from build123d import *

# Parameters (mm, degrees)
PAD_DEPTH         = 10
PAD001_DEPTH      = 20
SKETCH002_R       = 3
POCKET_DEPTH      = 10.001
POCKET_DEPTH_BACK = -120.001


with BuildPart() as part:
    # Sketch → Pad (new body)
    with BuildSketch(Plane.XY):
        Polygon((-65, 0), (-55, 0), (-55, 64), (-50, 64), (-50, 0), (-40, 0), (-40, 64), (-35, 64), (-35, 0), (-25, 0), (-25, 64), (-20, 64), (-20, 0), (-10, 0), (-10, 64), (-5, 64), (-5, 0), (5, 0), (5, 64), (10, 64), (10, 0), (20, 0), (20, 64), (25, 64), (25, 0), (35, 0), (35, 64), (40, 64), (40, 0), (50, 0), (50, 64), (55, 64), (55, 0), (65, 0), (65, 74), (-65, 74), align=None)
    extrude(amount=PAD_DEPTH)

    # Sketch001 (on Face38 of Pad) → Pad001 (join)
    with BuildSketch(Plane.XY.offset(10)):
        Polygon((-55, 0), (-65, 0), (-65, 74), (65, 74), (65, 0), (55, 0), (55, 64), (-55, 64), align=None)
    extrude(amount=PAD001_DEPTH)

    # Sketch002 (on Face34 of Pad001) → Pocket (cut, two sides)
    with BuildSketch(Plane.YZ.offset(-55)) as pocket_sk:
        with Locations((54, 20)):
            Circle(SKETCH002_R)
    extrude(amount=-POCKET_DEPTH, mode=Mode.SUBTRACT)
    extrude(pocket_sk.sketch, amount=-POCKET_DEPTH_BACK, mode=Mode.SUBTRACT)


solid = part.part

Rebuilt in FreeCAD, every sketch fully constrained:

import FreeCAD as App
import Part
import Sketcher
from FreeCAD import Vector
Q = App.Units.Quantity


def add_polygon(sketch, points):
    """Adds a closed chain of lines whose ends are joined by coincident constraints."""
    first, n = sketch.GeometryCount, len(points)
    for a, b in zip(points, points[1:] + points[:1]):
        sketch.addGeometry(Part.LineSegment(App.Vector(*a, 0), App.Vector(*b, 0)), False)
    for i in range(n):
        sketch.addConstraint(Sketcher.Constraint("Coincident", first + i, 2, first + (i + 1) % n, 1))

doc = App.newDocument("Part")
body = doc.addObject("PartDesign::Body", "Body")

sketch1 = body.newObject("Sketcher::SketchObject", "Sketch")
sketch1.AttachmentSupport = (doc.getObject("XY_Plane"), [""])
sketch1.MapMode = "FlatFace"
add_polygon(sketch1, [(-65, 0), (-55, 0), (-55, 64), (-50, 64), (-50, 0), (-40, 0), (-40, 64), (-35, 64), (-35, 0), (-25, 0), (-25, 64), (-20, 64), (-20, 0), (-10, 0), (-10, 64), (-5, 64), (-5, 0), (5, 0), (5, 64), (10, 64), (10, 0), (20, 0), (20, 64), (25, 64), (25, 0), (35, 0), (35, 64), (40, 64), (40, 0), (50, 0), (50, 64), (55, 64), (55, 0), (65, 0), (65, 74), (-65, 74)])
sketch1.addConstraint([
    Sketcher.Constraint("Horizontal", 0),
    Sketcher.Constraint("Vertical", 1),
    Sketcher.Constraint("Horizontal", 2),
    Sketcher.Constraint("Vertical", 3),
    Sketcher.Constraint("Horizontal", 4),
    Sketcher.Constraint("Vertical", 5),
    Sketcher.Constraint("Horizontal", 6),
    Sketcher.Constraint("Vertical", 7),
    Sketcher.Constraint("Horizontal", 8),
    Sketcher.Constraint("Vertical", 9),
    Sketcher.Constraint("Horizontal", 10),
    Sketcher.Constraint("Vertical", 11),
    Sketcher.Constraint("Horizontal", 12),
    Sketcher.Constraint("Vertical", 13),
    Sketcher.Constraint("Horizontal", 14),
    Sketcher.Constraint("Vertical", 15),
    Sketcher.Constraint("Horizontal", 16),
    Sketcher.Constraint("Vertical", 17),
    Sketcher.Constraint("Horizontal", 18),
    Sketcher.Constraint("Vertical", 19),
    Sketcher.Constraint("Horizontal", 20),
    Sketcher.Constraint("Vertical", 21),
    Sketcher.Constraint("Horizontal", 22),
    Sketcher.Constraint("Vertical", 23),
    Sketcher.Constraint("Horizontal", 24),
    Sketcher.Constraint("Vertical", 25),
    Sketcher.Constraint("Horizontal", 26),
    Sketcher.Constraint("Vertical", 27),
    Sketcher.Constraint("Horizontal", 28),
    Sketcher.Constraint("Vertical", 29),
    Sketcher.Constraint("Horizontal", 30),
    Sketcher.Constraint("Vertical", 31),
    Sketcher.Constraint("Horizontal", 32),
    Sketcher.Constraint("Vertical", 33),
    Sketcher.Constraint("Horizontal", 34),
    Sketcher.Constraint("Vertical", 35),
    Sketcher.Constraint("Symmetric", 15, 2, 16, 2, -1, 1),
    Sketcher.Constraint("Symmetric", 12, 2, 19, 2, -1, 1),
    Sketcher.Constraint("Symmetric", 8, 2, 23, 2, -1, 1),
    Sketcher.Constraint("Symmetric", 4, 2, 27, 2, -1, 1),
    Sketcher.Constraint("Symmetric", 0, 2, 31, 2, -1, 1),
    Sketcher.Constraint("Symmetric", 11, 2, 20, 2, -2),
    Sketcher.Constraint("Symmetric", 7, 2, 24, 2, -2),
    Sketcher.Constraint("Symmetric", 3, 2, 28, 2, -2),
    Sketcher.Constraint("Symmetric", 32, 2, 35, 2, -2),
    Sketcher.Constraint("Horizontal", 2, 2, 5, 2),
    Sketcher.Constraint("Horizontal", 6, 2, 9, 2),
    Sketcher.Constraint("Horizontal", 10, 2, 13, 2),
    Sketcher.Constraint("Horizontal", 14, 2, 17, 2),
    Sketcher.Constraint("Horizontal", 18, 2, 21, 2),
    Sketcher.Constraint("Horizontal", 22, 2, 25, 2),
    Sketcher.Constraint("Horizontal", 26, 2, 29, 2),
    Sketcher.Constraint("Equal", 0, 4),
    Sketcher.Constraint("Equal", 2, 6),
    Sketcher.Constraint("Equal", 4, 8),
    Sketcher.Constraint("Equal", 6, 10),
    Sketcher.Constraint("Equal", 8, 12),
    Sketcher.Constraint("Equal", 10, 14),
    Sketcher.Constraint("Equal", 12, 16),
    Sketcher.Constraint("DistanceX", 0, 1, 0, 2, Q("10 mm")),
    Sketcher.Constraint("DistanceX", 2, 1, 2, 2, Q("5 mm")),
    Sketcher.Constraint("DistanceY", 1, 1, 1, 2, Q("64 mm")),
    Sketcher.Constraint("DistanceY", 33, 1, 33, 2, Q("74 mm")),
])
pad1 = body.newObject("PartDesign::Pad", "Pad")
pad1.Profile = sketch1
pad1.Length = 10

sketch2 = body.newObject("Sketcher::SketchObject", "Sketch001")
sketch2.AttachmentSupport = (doc.getObject("XY_Plane"), [""])
sketch2.MapMode = "FlatFace"
sketch2.AttachmentOffset = App.Placement(Vector(0, 0, 10), App.Rotation())
add_polygon(sketch2, [(-65, 0), (-55, 0), (-55, 64), (55, 64), (55, 0), (65, 0), (65, 74), (-65, 74)])
sketch2.addConstraint([
    Sketcher.Constraint("Horizontal", 0),
    Sketcher.Constraint("Vertical", 1),
    Sketcher.Constraint("Horizontal", 2),
    Sketcher.Constraint("Vertical", 3),
    Sketcher.Constraint("Horizontal", 4),
    Sketcher.Constraint("Vertical", 5),
    Sketcher.Constraint("Horizontal", 6),
    Sketcher.Constraint("Vertical", 7),
    Sketcher.Constraint("Symmetric", 0, 2, 3, 2, -1, 1),
    Sketcher.Constraint("Symmetric", 4, 2, 7, 2, -2),
    Sketcher.Constraint("DistanceX", 0, 1, 0, 2, Q("10 mm")),
    Sketcher.Constraint("DistanceX", 2, 1, 2, 2, Q("110 mm")),
    Sketcher.Constraint("DistanceY", 1, 1, 1, 2, Q("64 mm")),
    Sketcher.Constraint("DistanceY", 5, 1, 5, 2, Q("74 mm")),
])
pad2 = body.newObject("PartDesign::Pad", "Pad001")
pad2.Profile = sketch2
pad2.Length = 20

sketch3 = body.newObject("Sketcher::SketchObject", "Sketch002")
sketch3.AttachmentSupport = (doc.getObject("YZ_Plane"), [""])
sketch3.MapMode = "FlatFace"
sketch3.AttachmentOffset = App.Placement(Vector(0, 0, -55), App.Rotation())
sketch3.addGeometry(Part.Circle(Vector(54, 20, 0), Vector(0, 0, 1), 3), False)
sketch3.addConstraint([
    Sketcher.Constraint("Diameter", 0, Q("6 mm")),
    Sketcher.Constraint("DistanceX", -1, 1, 0, 3, Q("54 mm")),
    Sketcher.Constraint("DistanceY", -1, 1, 0, 3, Q("20 mm")),
])
pocket1 = body.newObject("PartDesign::Pocket", "Pocket")
pocket1.Profile = sketch3
pocket1.Type = "ThroughAll"
pocket1.Midplane = True

doc.recompute()
